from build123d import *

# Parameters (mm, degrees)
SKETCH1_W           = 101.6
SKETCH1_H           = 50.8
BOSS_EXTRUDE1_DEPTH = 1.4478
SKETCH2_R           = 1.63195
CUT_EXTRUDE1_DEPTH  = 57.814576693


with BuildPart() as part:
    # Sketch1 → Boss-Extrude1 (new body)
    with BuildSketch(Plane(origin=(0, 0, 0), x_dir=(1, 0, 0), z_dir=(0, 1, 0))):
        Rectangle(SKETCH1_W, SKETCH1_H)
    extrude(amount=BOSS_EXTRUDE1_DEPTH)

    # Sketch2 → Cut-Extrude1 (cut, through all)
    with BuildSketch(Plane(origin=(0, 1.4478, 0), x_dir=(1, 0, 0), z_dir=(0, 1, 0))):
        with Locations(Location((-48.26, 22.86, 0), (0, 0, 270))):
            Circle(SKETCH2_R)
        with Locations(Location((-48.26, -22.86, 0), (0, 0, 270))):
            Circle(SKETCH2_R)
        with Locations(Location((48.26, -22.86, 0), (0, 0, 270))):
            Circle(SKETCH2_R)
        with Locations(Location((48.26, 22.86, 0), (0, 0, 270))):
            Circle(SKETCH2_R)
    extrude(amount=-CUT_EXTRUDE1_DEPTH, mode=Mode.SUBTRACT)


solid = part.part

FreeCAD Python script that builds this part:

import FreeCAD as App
import Part
import Sketcher

V = App.Vector
Q = App.Units.Quantity

doc = App.newDocument("Part")
body = doc.addObject("PartDesign::Body", "Body")

# Sketch on XZ plane
sketch1 = body.newObject("Sketcher::SketchObject", "Sketch")
sketch1.AttachmentSupport = (doc.getObject("XZ_Plane"), [""])
sketch1.MapMode = "FlatFace"
sketch1.addGeometry([
    Part.LineSegment(V(-51, -25, 0), V(-51, 25, 0)),
    Part.LineSegment(V(-51, 25, 0), V(51, 25, 0)),
    Part.LineSegment(V(51, 25, 0), V(51, -25, 0)),
    Part.LineSegment(V(51, -25, 0), V(-51, -25, 0)),
], False)
sketch1.addConstraint([
    Sketcher.Constraint("Coincident", 0, 2, 1, 1),
    Sketcher.Constraint("Coincident", 1, 2, 2, 1),
    Sketcher.Constraint("Coincident", 2, 2, 3, 1),
    Sketcher.Constraint("Coincident", 3, 2, 0, 1),
    Sketcher.Constraint("Vertical", 0),
    Sketcher.Constraint("Horizontal", 1),
    Sketcher.Constraint("Vertical", 2),
    Sketcher.Constraint("Horizontal", 3),
    Sketcher.Constraint("Symmetric", 0, 2, 2, 2, -1, 1),
    Sketcher.Constraint("DistanceX", 1, 1, 1, 2, Q("4 in")),
    Sketcher.Constraint("DistanceY", 0, 1, 0, 2, Q("2 in")),
])
pad1 = body.newObject("PartDesign::Pad", "Pad")
pad1.Profile = sketch1
pad1.Length = Q("0.057 in")
pad1.Reversed = True

# Sketch on XZ plane
sketch2 = body.newObject("Sketcher::SketchObject", "Sketch001")
sketch2.AttachmentSupport = (doc.getObject("XZ_Plane"), [""])
sketch2.MapMode = "FlatFace"
sketch2.AttachmentOffset = App.Placement(V(0, 0, -0.057 * 25.4), App.Rotation())
sketch2.addGeometry([
    Part.Circle(V(-48.3, -22.9, 0), V(0, 0, 1), 1.6),
    Part.Circle(V(-48.3, 22.9, 0), V(0, 0, 1), 1.6),
    Part.Circle(V(48.3, 22.9, 0), V(0, 0, 1), 1.6),
    Part.Circle(V(48.3, -22.9, 0), V(0, 0, 1), 1.6),
], False)
sketch2.addConstraint([
    Sketcher.Constraint("Equal", 0, 1),
    Sketcher.Constraint("Equal", 1, 2),
    Sketcher.Constraint("Equal", 2, 3),
    Sketcher.Constraint("Symmetric", 0, 3, 2, 3, -1, 1),
    Sketcher.Constraint("Symmetric", 1, 3, 3, 3, -1, 1),
    Sketcher.Constraint("Symmetric", 1, 3, 2, 3, -2),
    Sketcher.Constraint("Diameter", 0, Q("0.1285 in")),
    Sketcher.Constraint("DistanceX", 0, 3, -1, 1, Q("1.9 in")),
    Sketcher.Constraint("DistanceY", 0, 3, -1, 1, Q("0.9 in")),
])
pocket1 = body.newObject("PartDesign::Pocket", "Pocket")
pocket1.Profile = sketch2
pocket1.Type = "ThroughAll"
pocket1.Reversed = True

doc.recompute()
